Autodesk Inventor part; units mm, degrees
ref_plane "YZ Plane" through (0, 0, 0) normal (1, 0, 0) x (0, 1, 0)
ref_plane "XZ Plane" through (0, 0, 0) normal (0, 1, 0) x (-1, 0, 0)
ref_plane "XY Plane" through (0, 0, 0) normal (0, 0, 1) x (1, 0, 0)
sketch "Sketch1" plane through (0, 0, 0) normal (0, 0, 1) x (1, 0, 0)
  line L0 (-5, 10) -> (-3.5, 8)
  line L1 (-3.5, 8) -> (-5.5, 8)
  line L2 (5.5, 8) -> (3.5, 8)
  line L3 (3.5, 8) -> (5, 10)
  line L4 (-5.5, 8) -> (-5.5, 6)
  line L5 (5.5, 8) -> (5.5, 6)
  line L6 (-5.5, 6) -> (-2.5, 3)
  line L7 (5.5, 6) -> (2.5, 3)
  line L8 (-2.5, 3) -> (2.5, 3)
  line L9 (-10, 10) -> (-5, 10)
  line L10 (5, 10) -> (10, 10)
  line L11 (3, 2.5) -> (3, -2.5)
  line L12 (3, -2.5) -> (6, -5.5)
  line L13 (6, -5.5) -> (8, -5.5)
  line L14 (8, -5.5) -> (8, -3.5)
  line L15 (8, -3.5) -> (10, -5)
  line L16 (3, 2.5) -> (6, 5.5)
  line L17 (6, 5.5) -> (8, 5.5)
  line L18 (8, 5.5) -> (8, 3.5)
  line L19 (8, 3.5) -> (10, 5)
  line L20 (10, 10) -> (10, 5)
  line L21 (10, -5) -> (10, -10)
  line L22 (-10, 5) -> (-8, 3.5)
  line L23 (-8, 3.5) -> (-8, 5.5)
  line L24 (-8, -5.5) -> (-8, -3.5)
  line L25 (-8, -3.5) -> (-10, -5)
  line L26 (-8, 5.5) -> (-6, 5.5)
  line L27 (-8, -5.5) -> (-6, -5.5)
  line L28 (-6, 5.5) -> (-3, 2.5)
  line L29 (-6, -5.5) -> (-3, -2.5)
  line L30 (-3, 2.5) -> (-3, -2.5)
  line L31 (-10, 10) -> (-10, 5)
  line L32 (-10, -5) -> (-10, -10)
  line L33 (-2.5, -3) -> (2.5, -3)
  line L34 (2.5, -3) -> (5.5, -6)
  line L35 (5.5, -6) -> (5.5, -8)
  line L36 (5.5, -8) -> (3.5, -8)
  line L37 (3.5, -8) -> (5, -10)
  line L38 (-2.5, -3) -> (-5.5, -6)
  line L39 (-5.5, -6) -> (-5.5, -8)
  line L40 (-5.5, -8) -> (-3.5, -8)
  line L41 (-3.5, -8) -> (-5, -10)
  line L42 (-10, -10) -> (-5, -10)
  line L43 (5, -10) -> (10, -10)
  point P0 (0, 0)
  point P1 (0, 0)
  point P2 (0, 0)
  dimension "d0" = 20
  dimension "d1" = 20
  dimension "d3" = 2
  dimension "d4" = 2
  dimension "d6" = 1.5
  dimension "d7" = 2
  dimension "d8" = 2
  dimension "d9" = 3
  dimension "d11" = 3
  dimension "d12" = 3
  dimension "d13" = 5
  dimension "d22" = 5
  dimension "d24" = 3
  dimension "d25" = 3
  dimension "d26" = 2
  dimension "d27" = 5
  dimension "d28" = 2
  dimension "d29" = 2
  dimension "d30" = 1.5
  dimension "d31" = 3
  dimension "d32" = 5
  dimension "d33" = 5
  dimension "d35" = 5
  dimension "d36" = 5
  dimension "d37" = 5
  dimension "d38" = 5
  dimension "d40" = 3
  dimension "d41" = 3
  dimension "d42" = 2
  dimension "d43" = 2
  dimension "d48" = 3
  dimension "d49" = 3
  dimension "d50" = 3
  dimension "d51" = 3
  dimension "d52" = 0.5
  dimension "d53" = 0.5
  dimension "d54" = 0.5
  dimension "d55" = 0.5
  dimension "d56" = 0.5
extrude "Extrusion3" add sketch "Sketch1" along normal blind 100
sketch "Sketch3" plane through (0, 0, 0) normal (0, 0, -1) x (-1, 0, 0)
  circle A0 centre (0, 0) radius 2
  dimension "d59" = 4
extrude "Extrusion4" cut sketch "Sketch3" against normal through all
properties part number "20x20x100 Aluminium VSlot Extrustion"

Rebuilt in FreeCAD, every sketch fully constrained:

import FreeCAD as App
import Part
import Sketcher
from FreeCAD import Vector
Q = App.Units.Quantity

doc = App.newDocument("Part")
body = doc.addObject("PartDesign::Body", "Body")

# Sketch on XY plane
sketch1 = body.newObject("Sketcher::SketchObject", "Sketch")
sketch1.AttachmentSupport = (doc.getObject("XY_Plane"), [""])
sketch1.MapMode = "FlatFace"
sketch1.addGeometry(Part.LineSegment(Vector(-3.5, 8, 0), Vector(-5, 10, 0)), False)
sketch1.addGeometry(Part.LineSegment(Vector(-5, 10, 0), Vector(-10, 10, 0)), False)
sketch1.addGeometry(Part.LineSegment(Vector(-10, 10, 0), Vector(-10, 5, 0)), False)
sketch1.addGeometry(Part.LineSegment(Vector(-10, 5, 0), Vector(-8, 3.5, 0)), False)
sketch1.addGeometry(Part.LineSegment(Vector(-8, 3.5, 0), Vector(-8, 5.5, 0)), False)
sketch1.addGeometry(Part.LineSegment(Vector(-8, 5.5, 0), Vector(-6, 5.5, 0)), False)
sketch1.addGeometry(Part.LineSegment(Vector(-6, 5.5, 0), Vector(-3, 2.5, 0)), False)
sketch1.addGeometry(Part.LineSegment(Vector(-3, 2.5, 0), Vector(-3, -2.5, 0)), False)
sketch1.addGeometry(Part.LineSegment(Vector(-3, -2.5, 0), Vector(-6, -5.5, 0)), False)
sketch1.addGeometry(Part.LineSegment(Vector(-6, -5.5, 0), Vector(-8, -5.5, 0)), False)
sketch1.addGeometry(Part.LineSegment(Vector(-8, -5.5, 0), Vector(-8, -3.5, 0)), False)
sketch1.addGeometry(Part.LineSegment(Vector(-8, -3.5, 0), Vector(-10, -5, 0)), False)
sketch1.addGeometry(Part.LineSegment(Vector(-10, -5, 0), Vector(-10, -10, 0)), False)
sketch1.addGeometry(Part.LineSegment(Vector(-10, -10, 0), Vector(-5, -10, 0)), False)
sketch1.addGeometry(Part.LineSegment(Vector(-5, -10, 0), Vector(-3.5, -8, 0)), False)
sketch1.addGeometry(Part.LineSegment(Vector(-3.5, -8, 0), Vector(-5.5, -8, 0)), False)
sketch1.addGeometry(Part.LineSegment(Vector(-5.5, -8, 0), Vector(-5.5, -6, 0)), False)
sketch1.addGeometry(Part.LineSegment(Vector(-5.5, -6, 0), Vector(-2.5, -3, 0)), False)
sketch1.addGeometry(Part.LineSegment(Vector(-2.5, -3, 0), Vector(2.5, -3, 0)), False)
sketch1.addGeometry(Part.LineSegment(Vector(2.5, -3, 0), Vector(5.5, -6, 0)), False)
sketch1.addGeometry(Part.LineSegment(Vector(5.5, -6, 0), Vector(5.5, -8, 0)), False)
sketch1.addGeometry(Part.LineSegment(Vector(5.5, -8, 0), Vector(3.5, -8, 0)), False)
sketch1.addGeometry(Part.LineSegment(Vector(3.5, -8, 0), Vector(5, -10, 0)), False)
sketch1.addGeometry(Part.LineSegment(Vector(5, -10, 0), Vector(10, -10, 0)), False)
sketch1.addGeometry(Part.LineSegment(Vector(10, -10, 0), Vector(10, -5, 0)), False)
sketch1.addGeometry(Part.LineSegment(Vector(10, -5, 0), Vector(8, -3.5, 0)), False)
sketch1.addGeometry(Part.LineSegment(Vector(8, -3.5, 0), Vector(8, -5.5, 0)), False)
sketch1.addGeometry(Part.LineSegment(Vector(8, -5.5, 0), Vector(6, -5.5, 0)), False)
sketch1.addGeometry(Part.LineSegment(Vector(6, -5.5, 0), Vector(3, -2.5, 0)), False)
sketch1.addGeometry(Part.LineSegment(Vector(3, -2.5, 0), Vector(3, 2.5, 0)), False)
sketch1.addGeometry(Part.LineSegment(Vector(3, 2.5, 0), Vector(6, 5.5, 0)), False)
sketch1.addGeometry(Part.LineSegment(Vector(6, 5.5, 0), Vector(8, 5.5, 0)), False)
sketch1.addGeometry(Part.LineSegment(Vector(8, 5.5, 0), Vector(8, 3.5, 0)), False)
sketch1.addGeometry(Part.LineSegment(Vector(8, 3.5, 0), Vector(10, 5, 0)), False)
sketch1.addGeometry(Part.LineSegment(Vector(10, 5, 0), Vector(10, 10, 0)), False)
sketch1.addGeometry(Part.LineSegment(Vector(10, 10, 0), Vector(5, 10, 0)), False)
sketch1.addGeometry(Part.LineSegment(Vector(5, 10, 0), Vector(3.5, 8, 0)), False)
sketch1.addGeometry(Part.LineSegment(Vector(3.5, 8, 0), Vector(5.5, 8, 0)), False)
sketch1.addGeometry(Part.LineSegment(Vector(5.5, 8, 0), Vector(5.5, 6, 0)), False)
sketch1.addGeometry(Part.LineSegment(Vector(5.5, 6, 0), Vector(2.5, 3, 0)), False)
sketch1.addGeometry(Part.LineSegment(Vector(2.5, 3, 0), Vector(-2.5, 3, 0)), False)
sketch1.addGeometry(Part.LineSegment(Vector(-2.5, 3, 0), Vector(-5.5, 6, 0)), False)
sketch1.addGeometry(Part.LineSegment(Vector(-5.5, 6, 0), Vector(-5.5, 8, 0)), False)
sketch1.addGeometry(Part.LineSegment(Vector(-5.5, 8, 0), Vector(-3.5, 8, 0)), False)
sketch1.addConstraint(Sketcher.Constraint("Coincident", 0, 2, 1, 1))
sketch1.addConstraint(Sketcher.Constraint("Coincident", 1, 2, 2, 1))
sketch1.addConstraint(Sketcher.Constraint("Coincident", 2, 2, 3, 1))
sketch1.addConstraint(Sketcher.Constraint("Coincident", 3, 2, 4, 1))
sketch1.addConstraint(Sketcher.Constraint("Coincident", 4, 2, 5, 1))
sketch1.addConstraint(Sketcher.Constraint("Coincident", 5, 2, 6, 1))
sketch1.addConstraint(Sketcher.Constraint("Coincident", 6, 2, 7, 1))
sketch1.addConstraint(Sketcher.Constraint("Coincident", 7, 2, 8, 1))
sketch1.addConstraint(Sketcher.Constraint("Coincident", 8, 2, 9, 1))
sketch1.addConstraint(Sketcher.Constraint("Coincident", 9, 2, 10, 1))
sketch1.addConstraint(Sketcher.Constraint("Coincident", 10, 2, 11, 1))
sketch1.addConstraint(Sketcher.Constraint("Coincident", 11, 2, 12, 1))
sketch1.addConstraint(Sketcher.Constraint("Coincident", 12, 2, 13, 1))
sketch1.addConstraint(Sketcher.Constraint("Coincident", 13, 2, 14, 1))
sketch1.addConstraint(Sketcher.Constraint("Coincident", 14, 2, 15, 1))
sketch1.addConstraint(Sketcher.Constraint("Coincident", 15, 2, 16, 1))
sketch1.addConstraint(Sketcher.Constraint("Coincident", 16, 2, 17, 1))
sketch1.addConstraint(Sketcher.Constraint("Coincident", 17, 2, 18, 1))
sketch1.addConstraint(Sketcher.Constraint("Coincident", 18, 2, 19, 1))
sketch1.addConstraint(Sketcher.Constraint("Coincident", 19, 2, 20, 1))
sketch1.addConstraint(Sketcher.Constraint("Coincident", 20, 2, 21, 1))
sketch1.addConstraint(Sketcher.Constraint("Coincident", 21, 2, 22, 1))
sketch1.addConstraint(Sketcher.Constraint("Coincident", 22, 2, 23, 1))
sketch1.addConstraint(Sketcher.Constraint("Coincident", 23, 2, 24, 1))
sketch1.addConstraint(Sketcher.Constraint("Coincident", 24, 2, 25, 1))
sketch1.addConstraint(Sketcher.Constraint("Coincident", 25, 2, 26, 1))
sketch1.addConstraint(Sketcher.Constraint("Coincident", 26, 2, 27, 1))
sketch1.addConstraint(Sketcher.Constraint("Coincident", 27, 2, 28, 1))
sketch1.addConstraint(Sketcher.Constraint("Coincident", 28, 2, 29, 1))
sketch1.addConstraint(Sketcher.Constraint("Coincident", 29, 2, 30, 1))
sketch1.addConstraint(Sketcher.Constraint("Coincident", 30, 2, 31, 1))
sketch1.addConstraint(Sketcher.Constraint("Coincident", 31, 2, 32, 1))
sketch1.addConstraint(Sketcher.Constraint("Coincident", 32, 2, 33, 1))
sketch1.addConstraint(Sketcher.Constraint("Coincident", 33, 2, 34, 1))
sketch1.addConstraint(Sketcher.Constraint("Coincident", 34, 2, 35, 1))
sketch1.addConstraint(Sketcher.Constraint("Coincident", 35, 2, 36, 1))
sketch1.addConstraint(Sketcher.Constraint("Coincident", 36, 2, 37, 1))
sketch1.addConstraint(Sketcher.Constraint("Coincident", 37, 2, 38, 1))
sketch1.addConstraint(Sketcher.Constraint("Coincident", 38, 2, 39, 1))
sketch1.addConstraint(Sketcher.Constraint("Coincident", 39, 2, 40, 1))
sketch1.addConstraint(Sketcher.Constraint("Coincident", 40, 2, 41, 1))
sketch1.addConstraint(Sketcher.Constraint("Coincident", 41, 2, 42, 1))
sketch1.addConstraint(Sketcher.Constraint("Coincident", 42, 2, 43, 1))
sketch1.addConstraint(Sketcher.Constraint("Coincident", 43, 2, 0, 1))
sketch1.addConstraint(Sketcher.Constraint("Horizontal", 1))
sketch1.addConstraint(Sketcher.Constraint("Vertical", 2))
sketch1.addConstraint(Sketcher.Constraint("Vertical", 4))
sketch1.addConstraint(Sketcher.Constraint("Horizontal", 5))
sketch1.addConstraint(Sketcher.Constraint("Vertical", 7))
sketch1.addConstraint(Sketcher.Constraint("Horizontal", 9))
sketch1.addConstraint(Sketcher.Constraint("Vertical", 10))
sketch1.addConstraint(Sketcher.Constraint("Vertical", 12))
sketch1.addConstraint(Sketcher.Constraint("Horizontal", 13))
sketch1.addConstraint(Sketcher.Constraint("Horizontal", 15))
sketch1.addConstraint(Sketcher.Constraint("Vertical", 16))
sketch1.addConstraint(Sketcher.Constraint("Horizontal", 18))
sketch1.addConstraint(Sketcher.Constraint("Vertical", 20))
sketch1.addConstraint(Sketcher.Constraint("Horizontal", 21))
sketch1.addConstraint(Sketcher.Constraint("Horizontal", 23))
sketch1.addConstraint(Sketcher.Constraint("Vertical", 24))
sketch1.addConstraint(Sketcher.Constraint("Vertical", 26))
sketch1.addConstraint(Sketcher.Constraint("Horizontal", 27))
sketch1.addConstraint(Sketcher.Constraint("Vertical", 29))
sketch1.addConstraint(Sketcher.Constraint("Horizontal", 31))
sketch1.addConstraint(Sketcher.Constraint("Vertical", 32))
sketch1.addConstraint(Sketcher.Constraint("Vertical", 34))
sketch1.addConstraint(Sketcher.Constraint("Horizontal", 35))
sketch1.addConstraint(Sketcher.Constraint("Horizontal", 37))
sketch1.addConstraint(Sketcher.Constraint("Vertical", 38))
sketch1.addConstraint(Sketcher.Constraint("Horizontal", 40))
sketch1.addConstraint(Sketcher.Constraint("Vertical", 42))
sketch1.addConstraint(Sketcher.Constraint("Horizontal", 43))
sketch1.addConstraint(Sketcher.Constraint("Symmetric", 0, 2, 22, 2, -1, 1))
sketch1.addConstraint(Sketcher.Constraint("Symmetric", 2, 2, 24, 2, -1, 1))
sketch1.addConstraint(Sketcher.Constraint("Symmetric", 3, 2, 25, 2, -1, 1))
sketch1.addConstraint(Sketcher.Constraint("Symmetric", 5, 2, 27, 2, -1, 1))
sketch1.addConstraint(Sketcher.Constraint("Symmetric", 6, 2, 28, 2, -1, 1))
sketch1.addConstraint(Sketcher.Constraint("Symmetric", 8, 2, 30, 2, -1, 1))
sketch1.addConstraint(Sketcher.Constraint("Symmetric", 10, 2, 32, 2, -1, 1))
sketch1.addConstraint(Sketcher.Constraint("Symmetric", 11, 2, 33, 2, -1, 1))
sketch1.addConstraint(Sketcher.Constraint("Symmetric", 13, 2, 35, 2, -1, 1))
sketch1.addConstraint(Sketcher.Constraint("Symmetric", 14, 2, 36, 2, -1, 1))
sketch1.addConstraint(Sketcher.Constraint("Symmetric", 16, 2, 38, 2, -1, 1))
sketch1.addConstraint(Sketcher.Constraint("Symmetric", 17, 2, 39, 2, -1, 1))
sketch1.addConstraint(Sketcher.Constraint("Symmetric", 19, 2, 41, 2, -1, 1))
sketch1.addConstraint(Sketcher.Constraint("Symmetric", 21, 2, 43, 2, -1, 1))
sketch1.addConstraint(Sketcher.Constraint("Symmetric", 16, 2, 19, 2, -2))
sketch1.addConstraint(Sketcher.Constraint("Symmetric", 14, 2, 21, 2, -2))
sketch1.addConstraint(Sketcher.Constraint("Symmetric", 13, 2, 22, 2, -2))
sketch1.addConstraint(Sketcher.Constraint("Symmetric", 11, 2, 24, 2, -2))
sketch1.addConstraint(Sketcher.Constraint("Symmetric", 10, 2, 25, 2, -2))
sketch1.addConstraint(Sketcher.Constraint("Symmetric", 8, 2, 27, 2, -2))
sketch1.addConstraint(Sketcher.Constraint("Perpendicular", 6, 8))
sketch1.addConstraint(Sketcher.Constraint("Perpendicular", 0, 11))
sketch1.addConstraint(Sketcher.Constraint("Parallel", 8, 17))
sketch1.addConstraint(Sketcher.Constraint("Perpendicular", 17, 19))
sketch1.addConstraint(Sketcher.Constraint("Perpendicular", 28, 30))
sketch1.addConstraint(Sketcher.Constraint("Perpendicular", 39, 41))
sketch1.addConstraint(Sketcher.Constraint("Horizontal", 7, 2, 28, 2))
sketch1.addConstraint(Sketcher.Constraint("Equal", 9, 15))
sketch1.addConstraint(Sketcher.Constraint("Equal", 13, 18))
sketch1.addConstraint(Sketcher.Constraint("Equal", 40, 2))
sketch1.addConstraint(Sketcher.Constraint("Equal", 43, 4))
sketch1.addConstraint(Sketcher.Constraint("Equal", 2, 7))
sketch1.addConstraint(Sketcher.Constraint("Equal", 10, 16))
sketch1.addConstraint(Sketcher.Constraint("Equal", 0, 3))
sketch1.addConstraint(Sketcher.Constraint("Equal", 8, 17))
sketch1.addConstraint(Sketcher.Constraint("DistanceX", 1, 2, 1, 1, Q("5 mm")))
sketch1.addConstraint(Sketcher.Constraint("DistanceX", 5, 1, 5, 2, Q("2 mm")))
sketch1.addConstraint(Sketcher.Constraint("DistanceX", 0, 2, -1, 1, Q("5 mm")))
sketch1.addConstraint(Sketcher.Constraint("DistanceX", 6, 2, -1, 1, Q("3 mm")))
sketch1.addConstraint(Sketcher.Constraint("DistanceX", 2, 2, 3, 2, Q("2 mm")))
pad1 = body.newObject("PartDesign::Pad", "Pad")
pad1.Profile = sketch1
pad1.Length = 100

# Sketch on XY plane
sketch2 = body.newObject("Sketcher::SketchObject", "Sketch001")
sketch2.AttachmentSupport = (doc.getObject("XY_Plane"), [""])
sketch2.MapMode = "FlatFace"
sketch2.addGeometry(Part.Circle(Vector(0, 0, 0), Vector(0, 0, 1), 2), False)
sketch2.addConstraint(Sketcher.Constraint("Coincident", 0, 3, -1, 1))
sketch2.addConstraint(Sketcher.Constraint("Diameter", 0, Q("4 mm")))
pocket1 = body.newObject("PartDesign::Pocket", "Pocket")
pocket1.Profile = sketch2
pocket1.Type = "ThroughAll"
pocket1.Reversed = True

doc.recompute()
